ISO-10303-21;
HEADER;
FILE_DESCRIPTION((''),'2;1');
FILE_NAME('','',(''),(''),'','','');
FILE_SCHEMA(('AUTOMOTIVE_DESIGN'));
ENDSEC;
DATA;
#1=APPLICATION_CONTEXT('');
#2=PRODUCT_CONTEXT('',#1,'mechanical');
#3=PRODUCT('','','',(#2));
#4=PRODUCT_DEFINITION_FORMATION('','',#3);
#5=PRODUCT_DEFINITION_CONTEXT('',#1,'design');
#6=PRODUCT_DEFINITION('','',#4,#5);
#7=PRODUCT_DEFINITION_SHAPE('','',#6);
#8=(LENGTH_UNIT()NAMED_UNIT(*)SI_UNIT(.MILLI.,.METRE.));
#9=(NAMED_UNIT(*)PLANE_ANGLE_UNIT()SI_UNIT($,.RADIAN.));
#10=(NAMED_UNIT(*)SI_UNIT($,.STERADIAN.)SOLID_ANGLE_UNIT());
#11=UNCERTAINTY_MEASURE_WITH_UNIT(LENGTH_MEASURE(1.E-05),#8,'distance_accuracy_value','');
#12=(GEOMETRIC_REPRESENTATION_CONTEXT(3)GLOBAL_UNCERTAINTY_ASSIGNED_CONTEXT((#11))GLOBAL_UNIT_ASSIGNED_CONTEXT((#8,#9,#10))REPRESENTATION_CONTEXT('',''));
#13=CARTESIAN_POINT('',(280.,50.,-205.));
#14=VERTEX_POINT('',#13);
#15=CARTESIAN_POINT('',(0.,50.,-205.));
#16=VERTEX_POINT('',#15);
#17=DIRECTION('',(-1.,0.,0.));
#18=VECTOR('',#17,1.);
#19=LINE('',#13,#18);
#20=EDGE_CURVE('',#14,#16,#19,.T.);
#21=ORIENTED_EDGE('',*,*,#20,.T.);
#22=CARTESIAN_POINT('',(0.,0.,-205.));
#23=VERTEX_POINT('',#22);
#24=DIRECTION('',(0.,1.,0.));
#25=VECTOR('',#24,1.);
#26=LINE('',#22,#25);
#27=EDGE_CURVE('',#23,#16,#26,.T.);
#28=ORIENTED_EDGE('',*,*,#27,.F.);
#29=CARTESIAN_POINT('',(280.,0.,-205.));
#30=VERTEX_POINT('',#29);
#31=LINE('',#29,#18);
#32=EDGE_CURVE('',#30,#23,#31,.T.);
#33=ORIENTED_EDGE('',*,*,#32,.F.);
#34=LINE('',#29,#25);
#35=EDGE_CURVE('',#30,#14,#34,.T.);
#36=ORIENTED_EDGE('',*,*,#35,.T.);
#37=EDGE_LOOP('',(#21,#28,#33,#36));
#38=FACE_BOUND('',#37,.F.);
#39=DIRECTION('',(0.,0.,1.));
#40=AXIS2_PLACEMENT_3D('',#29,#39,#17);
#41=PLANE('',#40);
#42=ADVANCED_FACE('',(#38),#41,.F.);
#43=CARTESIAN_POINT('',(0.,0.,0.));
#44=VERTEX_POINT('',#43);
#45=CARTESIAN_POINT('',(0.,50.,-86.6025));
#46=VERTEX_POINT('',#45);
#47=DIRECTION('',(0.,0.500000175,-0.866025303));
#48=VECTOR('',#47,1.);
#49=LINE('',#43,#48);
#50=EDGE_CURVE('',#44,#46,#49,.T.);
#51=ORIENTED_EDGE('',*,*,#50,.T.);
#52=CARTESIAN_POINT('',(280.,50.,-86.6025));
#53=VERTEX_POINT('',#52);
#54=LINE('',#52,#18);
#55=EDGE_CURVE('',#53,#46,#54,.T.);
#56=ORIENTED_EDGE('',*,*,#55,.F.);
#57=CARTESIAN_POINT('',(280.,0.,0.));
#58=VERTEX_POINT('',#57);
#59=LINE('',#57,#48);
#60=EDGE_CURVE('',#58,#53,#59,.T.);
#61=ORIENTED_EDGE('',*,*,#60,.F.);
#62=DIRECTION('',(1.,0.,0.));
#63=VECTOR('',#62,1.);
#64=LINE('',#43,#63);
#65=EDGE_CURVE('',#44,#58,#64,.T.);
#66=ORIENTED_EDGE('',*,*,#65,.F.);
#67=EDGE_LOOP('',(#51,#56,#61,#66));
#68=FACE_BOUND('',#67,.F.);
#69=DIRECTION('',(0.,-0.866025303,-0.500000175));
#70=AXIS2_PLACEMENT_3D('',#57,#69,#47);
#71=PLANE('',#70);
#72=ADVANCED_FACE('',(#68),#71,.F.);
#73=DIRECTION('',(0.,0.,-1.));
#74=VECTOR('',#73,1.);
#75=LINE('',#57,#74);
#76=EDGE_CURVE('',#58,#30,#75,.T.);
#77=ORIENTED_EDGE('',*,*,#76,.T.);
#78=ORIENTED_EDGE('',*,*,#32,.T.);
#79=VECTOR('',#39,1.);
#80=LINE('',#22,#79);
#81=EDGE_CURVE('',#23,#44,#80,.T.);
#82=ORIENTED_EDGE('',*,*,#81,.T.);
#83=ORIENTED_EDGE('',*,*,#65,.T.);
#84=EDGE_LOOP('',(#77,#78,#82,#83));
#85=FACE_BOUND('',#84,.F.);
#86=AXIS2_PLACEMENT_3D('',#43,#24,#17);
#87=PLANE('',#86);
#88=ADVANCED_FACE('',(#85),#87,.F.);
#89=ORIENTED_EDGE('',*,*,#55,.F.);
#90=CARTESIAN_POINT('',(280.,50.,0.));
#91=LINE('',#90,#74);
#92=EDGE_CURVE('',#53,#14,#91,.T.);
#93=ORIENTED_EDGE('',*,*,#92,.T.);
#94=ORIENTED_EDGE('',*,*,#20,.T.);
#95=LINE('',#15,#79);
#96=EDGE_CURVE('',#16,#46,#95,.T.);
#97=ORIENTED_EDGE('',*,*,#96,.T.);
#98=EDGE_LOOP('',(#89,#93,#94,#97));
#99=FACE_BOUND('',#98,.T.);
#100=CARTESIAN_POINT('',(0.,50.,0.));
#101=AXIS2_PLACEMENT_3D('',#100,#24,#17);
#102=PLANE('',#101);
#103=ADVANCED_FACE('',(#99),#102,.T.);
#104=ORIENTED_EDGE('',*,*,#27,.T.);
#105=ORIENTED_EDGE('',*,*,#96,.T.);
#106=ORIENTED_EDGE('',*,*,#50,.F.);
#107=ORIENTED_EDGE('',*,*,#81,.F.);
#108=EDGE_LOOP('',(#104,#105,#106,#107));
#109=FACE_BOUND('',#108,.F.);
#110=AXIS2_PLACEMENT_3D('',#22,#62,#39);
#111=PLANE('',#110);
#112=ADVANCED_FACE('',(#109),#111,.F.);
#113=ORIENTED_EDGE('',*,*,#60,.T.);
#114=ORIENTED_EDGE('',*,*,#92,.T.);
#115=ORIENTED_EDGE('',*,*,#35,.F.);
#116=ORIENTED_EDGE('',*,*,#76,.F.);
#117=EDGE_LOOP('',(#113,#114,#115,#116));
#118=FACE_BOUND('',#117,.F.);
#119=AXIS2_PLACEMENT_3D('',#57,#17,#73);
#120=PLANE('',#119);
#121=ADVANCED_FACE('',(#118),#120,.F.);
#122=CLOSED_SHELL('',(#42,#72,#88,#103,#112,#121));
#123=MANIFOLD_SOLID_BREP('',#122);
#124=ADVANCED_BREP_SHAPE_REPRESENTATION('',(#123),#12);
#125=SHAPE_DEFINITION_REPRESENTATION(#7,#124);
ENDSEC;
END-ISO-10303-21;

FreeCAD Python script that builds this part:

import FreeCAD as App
import Part
import Sketcher
Q = App.Units.Quantity


def add_polygon(sketch, points):
    """Adds a closed chain of lines whose ends are joined by coincident constraints."""
    first, n = sketch.GeometryCount, len(points)
    for a, b in zip(points, points[1:] + points[:1]):
        sketch.addGeometry(Part.LineSegment(App.Vector(*a, 0), App.Vector(*b, 0)), False)
    for i in range(n):
        sketch.addConstraint(Sketcher.Constraint("Coincident", first + i, 2, first + (i + 1) % n, 1))

doc = App.newDocument("Part")
body = doc.addObject("PartDesign::Body", "Body")

# Sketch on XZ plane
sketch1 = body.newObject("Sketcher::SketchObject", "Sketch")
sketch1.AttachmentSupport = (doc.getObject("XZ_Plane"), [""])
sketch1.MapMode = "FlatFace"
add_polygon(sketch1, [(0, -205), (0, 0), (280, 0), (280, -205)])  # lines 0-3
sketch1.addConstraint([
    Sketcher.Constraint("Vertical", 0),
    Sketcher.Constraint("Horizontal", 1),
    Sketcher.Constraint("Vertical", 2),
    Sketcher.Constraint("Horizontal", 3),
    Sketcher.Constraint("Coincident", 0, 2, -1, 1),
    Sketcher.Constraint("DistanceX", 1, 1, 1, 2, Q("280 mm")),
    Sketcher.Constraint("DistanceY", 0, 1, 0, 2, Q("205 mm")),
])
pad1 = body.newObject("PartDesign::Pad", "Pad")
pad1.Profile = sketch1
pad1.Length = 50
pad1.Reversed = True

# Sketch on YZ plane
sketch2 = body.newObject("Sketcher::SketchObject", "Sketch001")
sketch2.AttachmentSupport = (doc.getObject("YZ_Plane"), [""])
sketch2.MapMode = "FlatFace"
sketch2.AttachmentOffset = App.Placement(App.Vector(0, 0, 280), App.Rotation())
add_polygon(sketch2, [(50, 0), (0, 0), (50, -87)])  # lines 0-2
sketch2.addConstraint([
    Sketcher.Constraint("Horizontal", 0),
    Sketcher.Constraint("Vertical", 2),
    Sketcher.Constraint("Coincident", 0, 2, -1, 1),
    Sketcher.Constraint("Distance", 1, Q("100 mm")),
    Sketcher.Constraint("DistanceX", 0, 2, 0, 1, Q("50 mm")),
])
pocket1 = body.newObject("PartDesign::Pocket", "Pocket")
pocket1.Profile = sketch2
pocket1.Length = 280

doc.recompute()
